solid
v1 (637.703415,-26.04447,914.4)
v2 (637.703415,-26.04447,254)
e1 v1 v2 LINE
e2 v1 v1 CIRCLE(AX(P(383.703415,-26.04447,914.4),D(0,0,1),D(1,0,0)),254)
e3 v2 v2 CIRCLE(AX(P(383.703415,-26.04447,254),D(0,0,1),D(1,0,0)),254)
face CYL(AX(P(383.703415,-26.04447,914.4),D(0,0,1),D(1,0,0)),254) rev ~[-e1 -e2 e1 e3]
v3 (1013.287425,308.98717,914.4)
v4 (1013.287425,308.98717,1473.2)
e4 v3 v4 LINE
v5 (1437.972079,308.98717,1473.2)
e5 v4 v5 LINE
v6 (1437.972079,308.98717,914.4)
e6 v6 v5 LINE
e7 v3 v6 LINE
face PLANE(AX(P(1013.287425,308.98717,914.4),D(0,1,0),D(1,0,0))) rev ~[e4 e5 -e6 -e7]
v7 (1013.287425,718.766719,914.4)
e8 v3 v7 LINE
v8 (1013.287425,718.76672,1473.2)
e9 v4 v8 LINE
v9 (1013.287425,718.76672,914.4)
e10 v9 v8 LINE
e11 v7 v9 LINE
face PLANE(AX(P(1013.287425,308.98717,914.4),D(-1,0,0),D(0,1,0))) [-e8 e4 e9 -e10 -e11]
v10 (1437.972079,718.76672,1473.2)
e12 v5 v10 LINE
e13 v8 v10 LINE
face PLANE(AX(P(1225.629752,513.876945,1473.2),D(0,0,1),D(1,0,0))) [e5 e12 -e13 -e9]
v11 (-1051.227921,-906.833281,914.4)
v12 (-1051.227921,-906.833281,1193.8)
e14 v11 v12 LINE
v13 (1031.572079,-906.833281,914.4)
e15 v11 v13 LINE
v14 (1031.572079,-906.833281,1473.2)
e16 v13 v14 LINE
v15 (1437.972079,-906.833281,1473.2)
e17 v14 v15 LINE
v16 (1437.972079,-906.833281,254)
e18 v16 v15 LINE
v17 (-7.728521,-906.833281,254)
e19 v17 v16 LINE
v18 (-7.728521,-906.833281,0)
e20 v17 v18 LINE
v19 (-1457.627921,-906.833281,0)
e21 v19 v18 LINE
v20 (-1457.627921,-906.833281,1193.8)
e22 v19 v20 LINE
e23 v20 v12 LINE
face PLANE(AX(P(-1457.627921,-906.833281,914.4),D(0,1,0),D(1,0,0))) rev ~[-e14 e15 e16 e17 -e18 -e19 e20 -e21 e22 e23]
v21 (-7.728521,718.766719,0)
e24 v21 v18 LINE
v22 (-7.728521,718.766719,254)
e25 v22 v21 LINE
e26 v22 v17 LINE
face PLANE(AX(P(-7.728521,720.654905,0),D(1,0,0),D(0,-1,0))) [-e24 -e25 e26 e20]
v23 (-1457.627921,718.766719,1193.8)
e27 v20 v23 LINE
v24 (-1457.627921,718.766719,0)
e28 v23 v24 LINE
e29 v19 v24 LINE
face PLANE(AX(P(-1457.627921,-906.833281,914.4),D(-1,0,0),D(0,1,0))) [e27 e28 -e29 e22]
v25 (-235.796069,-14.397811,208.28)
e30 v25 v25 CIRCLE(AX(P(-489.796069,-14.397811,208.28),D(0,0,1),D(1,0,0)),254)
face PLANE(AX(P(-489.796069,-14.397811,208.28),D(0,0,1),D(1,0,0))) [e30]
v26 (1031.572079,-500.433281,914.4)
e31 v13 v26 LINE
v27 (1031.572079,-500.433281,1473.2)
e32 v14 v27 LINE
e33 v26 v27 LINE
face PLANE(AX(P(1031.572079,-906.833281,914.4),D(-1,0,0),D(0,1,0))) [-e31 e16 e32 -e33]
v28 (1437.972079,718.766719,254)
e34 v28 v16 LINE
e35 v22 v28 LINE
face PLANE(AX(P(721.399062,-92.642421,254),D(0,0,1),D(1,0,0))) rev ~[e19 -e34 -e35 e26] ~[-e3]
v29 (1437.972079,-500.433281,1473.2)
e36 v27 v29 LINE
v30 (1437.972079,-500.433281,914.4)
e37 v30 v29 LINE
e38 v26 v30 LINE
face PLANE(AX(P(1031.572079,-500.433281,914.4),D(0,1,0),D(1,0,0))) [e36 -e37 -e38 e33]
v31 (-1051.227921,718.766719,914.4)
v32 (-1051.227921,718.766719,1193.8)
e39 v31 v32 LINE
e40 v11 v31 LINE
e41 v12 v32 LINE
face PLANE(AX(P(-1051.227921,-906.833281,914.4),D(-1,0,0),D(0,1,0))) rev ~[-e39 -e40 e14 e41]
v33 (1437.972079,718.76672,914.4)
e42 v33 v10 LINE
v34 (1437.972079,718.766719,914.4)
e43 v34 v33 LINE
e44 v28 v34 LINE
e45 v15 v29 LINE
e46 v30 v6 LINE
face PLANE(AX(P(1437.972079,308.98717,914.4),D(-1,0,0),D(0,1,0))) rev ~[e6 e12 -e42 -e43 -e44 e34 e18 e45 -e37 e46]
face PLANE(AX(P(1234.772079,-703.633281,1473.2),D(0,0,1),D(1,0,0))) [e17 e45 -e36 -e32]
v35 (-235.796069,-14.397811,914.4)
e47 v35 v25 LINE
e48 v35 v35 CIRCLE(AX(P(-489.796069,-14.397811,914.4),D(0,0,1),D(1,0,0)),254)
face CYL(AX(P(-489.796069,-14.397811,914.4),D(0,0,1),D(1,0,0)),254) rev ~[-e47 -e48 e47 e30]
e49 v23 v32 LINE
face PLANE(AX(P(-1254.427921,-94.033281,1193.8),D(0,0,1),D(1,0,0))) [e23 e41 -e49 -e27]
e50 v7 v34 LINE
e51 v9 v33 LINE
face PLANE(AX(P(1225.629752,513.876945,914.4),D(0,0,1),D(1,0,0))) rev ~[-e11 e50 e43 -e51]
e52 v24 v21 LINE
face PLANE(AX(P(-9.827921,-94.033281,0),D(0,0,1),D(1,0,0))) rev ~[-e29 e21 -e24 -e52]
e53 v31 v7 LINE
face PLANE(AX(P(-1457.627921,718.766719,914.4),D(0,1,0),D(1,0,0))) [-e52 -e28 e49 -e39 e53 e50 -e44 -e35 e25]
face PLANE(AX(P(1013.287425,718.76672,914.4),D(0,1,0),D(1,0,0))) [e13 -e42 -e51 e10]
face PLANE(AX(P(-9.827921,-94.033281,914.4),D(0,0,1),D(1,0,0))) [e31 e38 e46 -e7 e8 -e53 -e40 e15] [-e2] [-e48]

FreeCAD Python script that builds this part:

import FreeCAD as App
import Part
import Sketcher
from FreeCAD import Vector
Q = App.Units.Quantity


def add_polygon(sketch, points):
    """Adds a closed chain of lines whose ends are joined by coincident constraints."""
    first, n = sketch.GeometryCount, len(points)
    for a, b in zip(points, points[1:] + points[:1]):
        sketch.addGeometry(Part.LineSegment(App.Vector(*a, 0), App.Vector(*b, 0)), False)
    for i in range(n):
        sketch.addConstraint(Sketcher.Constraint("Coincident", first + i, 2, first + (i + 1) % n, 1))

doc = App.newDocument("Part")
body = doc.addObject("PartDesign::Body", "Body")

# Sketch on XY plane
sketch1 = body.newObject("Sketcher::SketchObject", "Sketch")
sketch1.AttachmentSupport = (doc.getObject("XY_Plane"), [""])
sketch1.MapMode = "FlatFace"
add_polygon(sketch1, [(-1457.627921, 718.766719), (-1457.627921, -906.833281), (1437.972079, -906.833281), (1437.972079, 718.766719)])  # lines 0-3
sketch1.addConstraint(Sketcher.Constraint("Vertical", 0))
sketch1.addConstraint(Sketcher.Constraint("Horizontal", 1))
sketch1.addConstraint(Sketcher.Constraint("Vertical", 2))
sketch1.addConstraint(Sketcher.Constraint("Horizontal", 3))
sketch1.addConstraint(Sketcher.Constraint("DistanceX", 1, 1, 1, 2, Q("114 in")))
sketch1.addConstraint(Sketcher.Constraint("DistanceY", 0, 2, 0, 1, Q("64 in")))
sketch1.addConstraint(Sketcher.Constraint("DistanceX", 0, 2, -1, 1, Q("1457.627921 mm")))
sketch1.addConstraint(Sketcher.Constraint("DistanceY", 0, 2, -1, 1, Q("906.833281 mm")))
pad1 = body.newObject("PartDesign::Pad", "Pad")
pad1.Profile = sketch1
pad1.Length = Q("36 in")

# Sketch on XY plane
sketch2 = body.newObject("Sketcher::SketchObject", "Sketch001")
sketch2.AttachmentSupport = (doc.getObject("XY_Plane"), [""])
sketch2.MapMode = "FlatFace"
add_polygon(sketch2, [(-7.527692, -503.38043), (-7.527692, -909.78043), (1440.272308, -909.78043), (1440.272308, -503.38043)])  # lines 0-3
sketch2.addConstraint(Sketcher.Constraint("Vertical", 0))
sketch2.addConstraint(Sketcher.Constraint("Horizontal", 1))
sketch2.addConstraint(Sketcher.Constraint("Vertical", 2))
sketch2.addConstraint(Sketcher.Constraint("Horizontal", 3))
sketch2.addConstraint(Sketcher.Constraint("DistanceX", 1, 1, 1, 2, Q("57 in")))
sketch2.addConstraint(Sketcher.Constraint("DistanceY", 0, 2, 0, 1, Q("16 in")))
sketch2.addConstraint(Sketcher.Constraint("DistanceY", 0, 2, -1, 1, Q("909.78043 mm")))
sketch2.addConstraint(Sketcher.Constraint("DistanceX", -1, 1, 1, 2, Q("1440.272308 mm")))
pocket1 = body.newObject("PartDesign::Pocket", "Pocket")
pocket1.Profile = sketch2
pocket1.Length = Q("10 in")
pocket1.Reversed = True

# Sketch on XY plane
sketch3 = body.newObject("Sketcher::SketchObject", "Sketch002")
sketch3.AttachmentSupport = (doc.getObject("XY_Plane"), [""])
sketch3.MapMode = "FlatFace"
add_polygon(sketch3, [(-7.728521, 720.654905), (-7.728521, -909.525675), (1452.226996, -902.336115), (1452.226996, 720.654905)])  # lines 0-3
sketch3.addConstraint(Sketcher.Constraint("Vertical", 0))
sketch3.addConstraint(Sketcher.Constraint("Vertical", 2))
sketch3.addConstraint(Sketcher.Constraint("Horizontal", 3))
sketch3.addConstraint(Sketcher.Constraint("DistanceY", 0, 2, 0, 1, Q("1630.18058 mm")))
sketch3.addConstraint(Sketcher.Constraint("DistanceY", 2, 1, 2, 2, Q("1622.99102 mm")))
sketch3.addConstraint(Sketcher.Constraint("Distance", 1, Q("1459.973219 mm")))
sketch3.addConstraint(Sketcher.Constraint("DistanceX", 0, 2, -1, 1, Q("7.728521 mm")))
sketch3.addConstraint(Sketcher.Constraint("DistanceY", 0, 2, -1, 1, Q("909.525675 mm")))
pocket2 = body.newObject("PartDesign::Pocket", "Pocket001")
pocket2.Profile = sketch3
pocket2.Length = Q("10 in")
pocket2.Reversed = True

# Sketch on XY plane
sketch4 = body.newObject("Sketcher::SketchObject", "Sketch003")
sketch4.AttachmentSupport = (doc.getObject("XY_Plane"), [""])
sketch4.MapMode = "FlatFace"
sketch4.AttachmentOffset = App.Placement(Vector(0, 0, 36 * 25.4), App.Rotation())
add_polygon(sketch4, [(1031.572079, -500.433281), (1031.572079, -906.833281), (1437.972079, -906.833281), (1437.972079, -500.433281)])  # lines 0-3
sketch4.addConstraint(Sketcher.Constraint("Vertical", 0))
sketch4.addConstraint(Sketcher.Constraint("Horizontal", 1))
sketch4.addConstraint(Sketcher.Constraint("Vertical", 2))
sketch4.addConstraint(Sketcher.Constraint("Horizontal", 3))
sketch4.addConstraint(Sketcher.Constraint("Equal", 3, 0))
sketch4.addConstraint(Sketcher.Constraint("DistanceX", 1, 1, 1, 2, Q("16 in")))
sketch4.addConstraint(Sketcher.Constraint("DistanceX", -1, 1, 0, 2, Q("1031.572079 mm")))
sketch4.addConstraint(Sketcher.Constraint("DistanceY", 0, 2, -1, 1, Q("906.833281 mm")))
pad2 = body.newObject("PartDesign::Pad", "Pad001")
pad2.Profile = sketch4
pad2.Length = Q("22 in")

# Sketch on XY plane
sketch5 = body.newObject("Sketcher::SketchObject", "Sketch004")
sketch5.AttachmentSupport = (doc.getObject("XY_Plane"), [""])
sketch5.MapMode = "FlatFace"
sketch5.AttachmentOffset = App.Placement(Vector(0, 0, 36 * 25.4), App.Rotation())
add_polygon(sketch5, [(1013.287425, 718.76672), (1013.287425, 308.98717), (1437.972079, 308.98717), (1437.972079, 718.76672)])  # lines 0-3
sketch5.addConstraint(Sketcher.Constraint("Vertical", 0))
sketch5.addConstraint(Sketcher.Constraint("Horizontal", 1))
sketch5.addConstraint(Sketcher.Constraint("Vertical", 2))
sketch5.addConstraint(Sketcher.Constraint("Horizontal", 3))
sketch5.addConstraint(Sketcher.Constraint("DistanceY", 0, 2, 0, 1, Q("409.779549 mm")))
sketch5.addConstraint(Sketcher.Constraint("DistanceX", 1, 1, 1, 2, Q("424.684654 mm")))
sketch5.addConstraint(Sketcher.Constraint("DistanceY", -1, 1, 0, 2, Q("308.98717 mm")))
sketch5.addConstraint(Sketcher.Constraint("DistanceX", -1, 1, 1, 2, Q("1437.972079 mm")))
pad3 = body.newObject("PartDesign::Pad", "Pad002")
pad3.Profile = sketch5
pad3.Length = Q("22 in")

# Sketch on XY plane
sketch6 = body.newObject("Sketcher::SketchObject", "Sketch005")
sketch6.AttachmentSupport = (doc.getObject("XY_Plane"), [""])
sketch6.MapMode = "FlatFace"
sketch6.AttachmentOffset = App.Placement(Vector(0, 0, 36 * 25.4), App.Rotation())
add_polygon(sketch6, [(-1457.627921, 718.766719), (-1457.627921, -906.833281), (-1051.227921, -906.833281), (-1051.227921, 718.766719)])  # lines 0-3
sketch6.addConstraint(Sketcher.Constraint("Vertical", 0))
sketch6.addConstraint(Sketcher.Constraint("Horizontal", 1))
sketch6.addConstraint(Sketcher.Constraint("Vertical", 2))
sketch6.addConstraint(Sketcher.Constraint("Horizontal", 3))
sketch6.addConstraint(Sketcher.Constraint("DistanceX", 1, 1, 1, 2, Q("16 in")))
sketch6.addConstraint(Sketcher.Constraint("DistanceY", 0, 2, 0, 1, Q("64 in")))
sketch6.addConstraint(Sketcher.Constraint("DistanceX", 0, 2, -1, 1, Q("1457.627921 mm")))
sketch6.addConstraint(Sketcher.Constraint("DistanceY", 0, 2, -1, 1, Q("906.833281 mm")))
pad4 = body.newObject("PartDesign::Pad", "Pad003")
pad4.Profile = sketch6
pad4.Length = Q("11 in")

# Sketch on XY plane
sketch7 = body.newObject("Sketcher::SketchObject", "Sketch006")
sketch7.AttachmentSupport = (doc.getObject("XY_Plane"), [""])
sketch7.MapMode = "FlatFace"
sketch7.AttachmentOffset = App.Placement(Vector(0, 0, 36 * 25.4), App.Rotation())
sketch7.addGeometry(Part.Circle(Vector(-489.796069, -14.397811, 0), Vector(0, 0, 1), 254), False)
sketch7.addGeometry(Part.Circle(Vector(383.703415, -26.04447, 0), Vector(0, 0, 1), 254), False)
sketch7.addConstraint(Sketcher.Constraint("Equal", 0, 1))
sketch7.addConstraint(Sketcher.Constraint("Diameter", 0, Q("20 in")))
sketch7.addConstraint(Sketcher.Constraint("DistanceX", 0, 3, -1, 1, Q("489.796069 mm")))
sketch7.addConstraint(Sketcher.Constraint("DistanceY", 0, 3, -1, 1, Q("14.397811 mm")))
sketch7.addConstraint(Sketcher.Constraint("DistanceY", 1, 3, -1, 1, Q("26.04447 mm")))
sketch7.addConstraint(Sketcher.Constraint("DistanceX", -1, 1, 1, 3, Q("383.703415 mm")))
pocket3 = body.newObject("PartDesign::Pocket", "Pocket002")
pocket3.Profile = sketch7
pocket3.Length = Q("27.8 in")

doc.recompute()
